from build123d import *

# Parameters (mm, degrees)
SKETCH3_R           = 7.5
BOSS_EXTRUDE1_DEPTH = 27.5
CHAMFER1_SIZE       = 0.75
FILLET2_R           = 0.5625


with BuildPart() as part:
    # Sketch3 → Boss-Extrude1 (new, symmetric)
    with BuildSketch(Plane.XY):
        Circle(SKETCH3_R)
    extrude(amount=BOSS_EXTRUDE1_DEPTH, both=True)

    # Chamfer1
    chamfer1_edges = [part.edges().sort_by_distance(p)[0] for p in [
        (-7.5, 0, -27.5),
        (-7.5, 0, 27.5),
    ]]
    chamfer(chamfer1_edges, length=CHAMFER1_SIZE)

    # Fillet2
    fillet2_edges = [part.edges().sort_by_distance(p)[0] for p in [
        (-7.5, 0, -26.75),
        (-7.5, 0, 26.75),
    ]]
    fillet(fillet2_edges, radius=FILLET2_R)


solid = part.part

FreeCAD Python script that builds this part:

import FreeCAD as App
import Part
import Sketcher

V = App.Vector


def edges_at(feature, points):
    """Names of the edges that pass closest to the given points."""
    edges = feature.Shape.Edges
    near = lambda p: min(range(len(edges)), key=lambda i: edges[i].distToShape(Part.Vertex(*p))[0])
    return sorted({f"Edge{near(p) + 1}" for p in points})

doc = App.newDocument("Part")
body = doc.addObject("PartDesign::Body", "Body")

sketch1 = body.newObject("Sketcher::SketchObject", "Sketch")
sketch1.AttachmentSupport = (doc.getObject("XY_Plane"), [""])
sketch1.MapMode = "FlatFace"
sketch1.addGeometry(Part.Circle(V(0, 0, 0), V(0, 0, 1), 8), False)
sketch1.addConstraint(Sketcher.Constraint("Coincident", 0, 3, -1, 1))
sketch1.addConstraint(Sketcher.Constraint("Diameter", 0, 15.0))
pad1 = body.newObject("PartDesign::Pad", "Pad")
pad1.Profile = sketch1
pad1.Length = 55
pad1.Midplane = True
doc.recompute()

chamfer = body.newObject("PartDesign::Chamfer", "Chamfer")
chamfer.Base = (pad1, edges_at(pad1, [(-7.5, 0, -27.5), (-7.5, 0, 27.5)]))
chamfer.Size = 0.75
doc.recompute()

fillet = body.newObject("PartDesign::Fillet", "Fillet")
fillet.Base = (chamfer, edges_at(chamfer, [(-7.5, 0, -26.75), (-7.5, 0, 26.75)]))
fillet.Radius = 0.5625

doc.recompute()
